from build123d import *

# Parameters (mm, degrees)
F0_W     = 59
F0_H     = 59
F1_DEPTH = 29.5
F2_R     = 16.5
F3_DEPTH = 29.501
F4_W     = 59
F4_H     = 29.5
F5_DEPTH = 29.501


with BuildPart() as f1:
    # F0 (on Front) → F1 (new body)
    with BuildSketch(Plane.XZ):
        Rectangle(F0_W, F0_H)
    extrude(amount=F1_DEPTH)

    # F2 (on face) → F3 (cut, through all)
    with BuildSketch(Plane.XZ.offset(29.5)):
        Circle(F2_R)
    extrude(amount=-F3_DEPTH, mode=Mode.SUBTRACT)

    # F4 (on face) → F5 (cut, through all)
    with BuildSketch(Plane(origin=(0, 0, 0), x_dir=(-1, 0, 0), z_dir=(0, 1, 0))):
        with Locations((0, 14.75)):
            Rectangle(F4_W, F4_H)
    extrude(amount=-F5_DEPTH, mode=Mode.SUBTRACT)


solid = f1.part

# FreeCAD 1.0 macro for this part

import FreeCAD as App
import Part
import Sketcher
from FreeCAD import Vector

doc = App.newDocument("Part")
body = doc.addObject("PartDesign::Body", "Body")

# Sketch on XZ plane
sketch1 = body.newObject("Sketcher::SketchObject", "Sketch")
sketch1.AttachmentSupport = (doc.getObject("XZ_Plane"), [""])
sketch1.MapMode = "FlatFace"
sketch1.addGeometry([
    Part.LineSegment(Vector(-30, 30, 0), Vector(-30, -30, 0)),
    Part.LineSegment(Vector(-30, -30, 0), Vector(30, -30, 0)),
    Part.LineSegment(Vector(30, -30, 0), Vector(30, 30, 0)),
    Part.LineSegment(Vector(30, 30, 0), Vector(-30, 30, 0)),
], False)
sketch1.addConstraint([
    Sketcher.Constraint("Coincident", 0, 2, 1, 1),
    Sketcher.Constraint("Coincident", 1, 2, 2, 1),
    Sketcher.Constraint("Coincident", 2, 2, 3, 1),
    Sketcher.Constraint("Coincident", 3, 2, 0, 1),
    Sketcher.Constraint("Vertical", 0),
    Sketcher.Constraint("Horizontal", 1),
    Sketcher.Constraint("Vertical", 2),
    Sketcher.Constraint("Horizontal", 3),
    Sketcher.Constraint("Symmetric", 0, 2, 2, 2, -1, 1),
    Sketcher.Constraint("Equal", 3, 0),
    Sketcher.Constraint("DistanceX", 1, 1, 1, 2, 59.0),
])
pad1 = body.newObject("PartDesign::Pad", "Pad")
pad1.Profile = sketch1
pad1.Length = 29.5

# Sketch on XZ plane
sketch2 = body.newObject("Sketcher::SketchObject", "Sketch001")
sketch2.AttachmentSupport = (doc.getObject("XZ_Plane"), [""])
sketch2.MapMode = "FlatFace"
sketch2.AttachmentOffset = App.Placement(Vector(0, 0, 29.5), App.Rotation())
sketch2.addGeometry(Part.Circle(Vector(0, 0, 0), Vector(0, 0, 1), 16), False)
sketch2.addConstraint([
    Sketcher.Constraint("Coincident", 0, 3, -1, 1),
    Sketcher.Constraint("Diameter", 0, 33.0),
])
pocket1 = body.newObject("PartDesign::Pocket", "Pocket")
pocket1.Profile = sketch2
pocket1.Type = "ThroughAll"

# Sketch on XZ plane
sketch3 = body.newObject("Sketcher::SketchObject", "Sketch002")
sketch3.AttachmentSupport = (doc.getObject("XZ_Plane"), [""])
sketch3.MapMode = "FlatFace"
sketch3.addGeometry([
    Part.LineSegment(Vector(30, 30, 0), Vector(30, 0, 0)),
    Part.LineSegment(Vector(30, 0, 0), Vector(-30, 0, 0)),
    Part.LineSegment(Vector(-30, 0, 0), Vector(-30, 30, 0)),
    Part.LineSegment(Vector(-30, 30, 0), Vector(30, 30, 0)),
], False)
sketch3.addConstraint([
    Sketcher.Constraint("Coincident", 0, 2, 1, 1),
    Sketcher.Constraint("Coincident", 1, 2, 2, 1),
    Sketcher.Constraint("Coincident", 2, 2, 3, 1),
    Sketcher.Constraint("Coincident", 3, 2, 0, 1),
    Sketcher.Constraint("Vertical", 0),
    Sketcher.Constraint("Horizontal", 1),
    Sketcher.Constraint("Vertical", 2),
    Sketcher.Constraint("Horizontal", 3),
    Sketcher.Constraint("Symmetric", 0, 2, 1, 2, -1, 1),
    Sketcher.Constraint("DistanceX", 1, 2, 1, 1, 59.0),
    Sketcher.Constraint("DistanceY", 0, 2, 0, 1, 29.5),
])
pocket2 = body.newObject("PartDesign::Pocket", "Pocket001")
pocket2.Profile = sketch3
pocket2.Type = "ThroughAll"
pocket2.Reversed = True

doc.recompute()
